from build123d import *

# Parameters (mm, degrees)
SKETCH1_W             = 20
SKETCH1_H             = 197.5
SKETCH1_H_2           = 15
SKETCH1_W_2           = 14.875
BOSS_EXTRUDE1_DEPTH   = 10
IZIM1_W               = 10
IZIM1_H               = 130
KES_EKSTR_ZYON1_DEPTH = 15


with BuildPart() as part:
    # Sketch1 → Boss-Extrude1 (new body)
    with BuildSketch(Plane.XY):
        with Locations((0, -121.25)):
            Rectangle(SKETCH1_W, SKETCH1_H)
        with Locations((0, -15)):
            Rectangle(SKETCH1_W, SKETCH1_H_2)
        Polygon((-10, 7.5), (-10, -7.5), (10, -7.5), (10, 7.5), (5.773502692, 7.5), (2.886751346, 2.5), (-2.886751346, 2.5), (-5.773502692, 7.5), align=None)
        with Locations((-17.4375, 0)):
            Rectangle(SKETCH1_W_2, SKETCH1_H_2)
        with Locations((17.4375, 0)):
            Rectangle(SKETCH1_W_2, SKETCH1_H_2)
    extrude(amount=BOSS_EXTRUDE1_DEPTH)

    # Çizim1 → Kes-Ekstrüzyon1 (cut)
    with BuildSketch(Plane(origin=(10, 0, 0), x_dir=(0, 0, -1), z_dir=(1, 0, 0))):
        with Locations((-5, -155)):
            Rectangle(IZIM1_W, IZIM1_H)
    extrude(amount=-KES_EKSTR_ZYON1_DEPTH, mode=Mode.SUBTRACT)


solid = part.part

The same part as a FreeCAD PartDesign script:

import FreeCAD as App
import Part
import Sketcher
from FreeCAD import Vector
Q = App.Units.Quantity


def add_polygon(sketch, points):
    """Adds a closed chain of lines whose ends are joined by coincident constraints."""
    first, n = sketch.GeometryCount, len(points)
    for a, b in zip(points, points[1:] + points[:1]):
        sketch.addGeometry(Part.LineSegment(App.Vector(*a, 0), App.Vector(*b, 0)), False)
    for i in range(n):
        sketch.addConstraint(Sketcher.Constraint("Coincident", first + i, 2, first + (i + 1) % n, 1))

doc = App.newDocument("Part")
body = doc.addObject("PartDesign::Body", "Body")

sketch1 = doc.addObject("Sketcher::SketchObject", "Sketch")
body.addObject(sketch1)
sketch1.AttachmentSupport = (doc.XY_Plane, [""])
sketch1.MapMode = "FlatFace"
add_polygon(sketch1, [(-10, -220), (10, -220), (10, -8), (25, -8), (25, 8), (6, 8), (3, 2), (-3, 2), (-6, 8), (-25, 8), (-25, -8), (-10, -8)])
sketch1.addConstraint([
    Sketcher.Constraint("Horizontal", 0),
    Sketcher.Constraint("Vertical", 1),
    Sketcher.Constraint("Horizontal", 2),
    Sketcher.Constraint("Vertical", 3),
    Sketcher.Constraint("Horizontal", 4),
    Sketcher.Constraint("Horizontal", 6),
    Sketcher.Constraint("Horizontal", 8),
    Sketcher.Constraint("Vertical", 9),
    Sketcher.Constraint("Horizontal", 10),
    Sketcher.Constraint("Vertical", 11),
    Sketcher.Constraint("Symmetric", 2, 2, 8, 2, -1, 1),
    Sketcher.Constraint("Symmetric", 4, 2, 7, 2, -2),
    Sketcher.Constraint("Symmetric", 1, 2, 10, 2, -2),
    Sketcher.Constraint("Equal", 5, 7),
    Sketcher.Constraint("DistanceX", 0, 1, 0, 2, 20.0),
    Sketcher.Constraint("DistanceY", 3, 1, 3, 2, 15.0),
    Sketcher.Constraint("Angle", 5, Q("-120 deg")),
    Sketcher.Constraint("DistanceY", 1, 1, 1, 2, 212.5),
    Sketcher.Constraint("DistanceY", 5, 2, 4, 2, 5.0),
    Sketcher.Constraint("DistanceX", 2, 1, 2, 2, 14.875),
    Sketcher.Constraint("DistanceX", 4, 2, 4, 1, 19.101497),
])
pad1 = doc.addObject("PartDesign::Pad", "Pad")
body.addObject(pad1)
pad1.Profile = sketch1
pad1.Length = 10

sketch2 = doc.addObject("Sketcher::SketchObject", "Sketch001")
body.addObject(sketch2)
sketch2.AttachmentSupport = (doc.YZ_Plane, [""])
sketch2.MapMode = "FlatFace"
sketch2.AttachmentOffset = App.Placement(Vector(0, 0, 10), App.Rotation())
add_polygon(sketch2, [(-90, 10), (-220, 10), (-220, 0), (-90, 0)])
sketch2.addConstraint([
    Sketcher.Constraint("Horizontal", 0),
    Sketcher.Constraint("Vertical", 1),
    Sketcher.Constraint("Horizontal", 2),
    Sketcher.Constraint("Vertical", 3),
    Sketcher.Constraint("PointOnObject", 1, 2, -1),
    Sketcher.Constraint("DistanceX", 0, 2, 0, 1, 130.0),
    Sketcher.Constraint("DistanceY", 1, 2, 1, 1, 10.0),
    Sketcher.Constraint("DistanceX", 0, 2, -1, 1, 220.0),
])
pocket1 = doc.addObject("PartDesign::Pocket", "Pocket")
body.addObject(pocket1)
pocket1.Profile = sketch2
pocket1.Length = 15

doc.recompute()
